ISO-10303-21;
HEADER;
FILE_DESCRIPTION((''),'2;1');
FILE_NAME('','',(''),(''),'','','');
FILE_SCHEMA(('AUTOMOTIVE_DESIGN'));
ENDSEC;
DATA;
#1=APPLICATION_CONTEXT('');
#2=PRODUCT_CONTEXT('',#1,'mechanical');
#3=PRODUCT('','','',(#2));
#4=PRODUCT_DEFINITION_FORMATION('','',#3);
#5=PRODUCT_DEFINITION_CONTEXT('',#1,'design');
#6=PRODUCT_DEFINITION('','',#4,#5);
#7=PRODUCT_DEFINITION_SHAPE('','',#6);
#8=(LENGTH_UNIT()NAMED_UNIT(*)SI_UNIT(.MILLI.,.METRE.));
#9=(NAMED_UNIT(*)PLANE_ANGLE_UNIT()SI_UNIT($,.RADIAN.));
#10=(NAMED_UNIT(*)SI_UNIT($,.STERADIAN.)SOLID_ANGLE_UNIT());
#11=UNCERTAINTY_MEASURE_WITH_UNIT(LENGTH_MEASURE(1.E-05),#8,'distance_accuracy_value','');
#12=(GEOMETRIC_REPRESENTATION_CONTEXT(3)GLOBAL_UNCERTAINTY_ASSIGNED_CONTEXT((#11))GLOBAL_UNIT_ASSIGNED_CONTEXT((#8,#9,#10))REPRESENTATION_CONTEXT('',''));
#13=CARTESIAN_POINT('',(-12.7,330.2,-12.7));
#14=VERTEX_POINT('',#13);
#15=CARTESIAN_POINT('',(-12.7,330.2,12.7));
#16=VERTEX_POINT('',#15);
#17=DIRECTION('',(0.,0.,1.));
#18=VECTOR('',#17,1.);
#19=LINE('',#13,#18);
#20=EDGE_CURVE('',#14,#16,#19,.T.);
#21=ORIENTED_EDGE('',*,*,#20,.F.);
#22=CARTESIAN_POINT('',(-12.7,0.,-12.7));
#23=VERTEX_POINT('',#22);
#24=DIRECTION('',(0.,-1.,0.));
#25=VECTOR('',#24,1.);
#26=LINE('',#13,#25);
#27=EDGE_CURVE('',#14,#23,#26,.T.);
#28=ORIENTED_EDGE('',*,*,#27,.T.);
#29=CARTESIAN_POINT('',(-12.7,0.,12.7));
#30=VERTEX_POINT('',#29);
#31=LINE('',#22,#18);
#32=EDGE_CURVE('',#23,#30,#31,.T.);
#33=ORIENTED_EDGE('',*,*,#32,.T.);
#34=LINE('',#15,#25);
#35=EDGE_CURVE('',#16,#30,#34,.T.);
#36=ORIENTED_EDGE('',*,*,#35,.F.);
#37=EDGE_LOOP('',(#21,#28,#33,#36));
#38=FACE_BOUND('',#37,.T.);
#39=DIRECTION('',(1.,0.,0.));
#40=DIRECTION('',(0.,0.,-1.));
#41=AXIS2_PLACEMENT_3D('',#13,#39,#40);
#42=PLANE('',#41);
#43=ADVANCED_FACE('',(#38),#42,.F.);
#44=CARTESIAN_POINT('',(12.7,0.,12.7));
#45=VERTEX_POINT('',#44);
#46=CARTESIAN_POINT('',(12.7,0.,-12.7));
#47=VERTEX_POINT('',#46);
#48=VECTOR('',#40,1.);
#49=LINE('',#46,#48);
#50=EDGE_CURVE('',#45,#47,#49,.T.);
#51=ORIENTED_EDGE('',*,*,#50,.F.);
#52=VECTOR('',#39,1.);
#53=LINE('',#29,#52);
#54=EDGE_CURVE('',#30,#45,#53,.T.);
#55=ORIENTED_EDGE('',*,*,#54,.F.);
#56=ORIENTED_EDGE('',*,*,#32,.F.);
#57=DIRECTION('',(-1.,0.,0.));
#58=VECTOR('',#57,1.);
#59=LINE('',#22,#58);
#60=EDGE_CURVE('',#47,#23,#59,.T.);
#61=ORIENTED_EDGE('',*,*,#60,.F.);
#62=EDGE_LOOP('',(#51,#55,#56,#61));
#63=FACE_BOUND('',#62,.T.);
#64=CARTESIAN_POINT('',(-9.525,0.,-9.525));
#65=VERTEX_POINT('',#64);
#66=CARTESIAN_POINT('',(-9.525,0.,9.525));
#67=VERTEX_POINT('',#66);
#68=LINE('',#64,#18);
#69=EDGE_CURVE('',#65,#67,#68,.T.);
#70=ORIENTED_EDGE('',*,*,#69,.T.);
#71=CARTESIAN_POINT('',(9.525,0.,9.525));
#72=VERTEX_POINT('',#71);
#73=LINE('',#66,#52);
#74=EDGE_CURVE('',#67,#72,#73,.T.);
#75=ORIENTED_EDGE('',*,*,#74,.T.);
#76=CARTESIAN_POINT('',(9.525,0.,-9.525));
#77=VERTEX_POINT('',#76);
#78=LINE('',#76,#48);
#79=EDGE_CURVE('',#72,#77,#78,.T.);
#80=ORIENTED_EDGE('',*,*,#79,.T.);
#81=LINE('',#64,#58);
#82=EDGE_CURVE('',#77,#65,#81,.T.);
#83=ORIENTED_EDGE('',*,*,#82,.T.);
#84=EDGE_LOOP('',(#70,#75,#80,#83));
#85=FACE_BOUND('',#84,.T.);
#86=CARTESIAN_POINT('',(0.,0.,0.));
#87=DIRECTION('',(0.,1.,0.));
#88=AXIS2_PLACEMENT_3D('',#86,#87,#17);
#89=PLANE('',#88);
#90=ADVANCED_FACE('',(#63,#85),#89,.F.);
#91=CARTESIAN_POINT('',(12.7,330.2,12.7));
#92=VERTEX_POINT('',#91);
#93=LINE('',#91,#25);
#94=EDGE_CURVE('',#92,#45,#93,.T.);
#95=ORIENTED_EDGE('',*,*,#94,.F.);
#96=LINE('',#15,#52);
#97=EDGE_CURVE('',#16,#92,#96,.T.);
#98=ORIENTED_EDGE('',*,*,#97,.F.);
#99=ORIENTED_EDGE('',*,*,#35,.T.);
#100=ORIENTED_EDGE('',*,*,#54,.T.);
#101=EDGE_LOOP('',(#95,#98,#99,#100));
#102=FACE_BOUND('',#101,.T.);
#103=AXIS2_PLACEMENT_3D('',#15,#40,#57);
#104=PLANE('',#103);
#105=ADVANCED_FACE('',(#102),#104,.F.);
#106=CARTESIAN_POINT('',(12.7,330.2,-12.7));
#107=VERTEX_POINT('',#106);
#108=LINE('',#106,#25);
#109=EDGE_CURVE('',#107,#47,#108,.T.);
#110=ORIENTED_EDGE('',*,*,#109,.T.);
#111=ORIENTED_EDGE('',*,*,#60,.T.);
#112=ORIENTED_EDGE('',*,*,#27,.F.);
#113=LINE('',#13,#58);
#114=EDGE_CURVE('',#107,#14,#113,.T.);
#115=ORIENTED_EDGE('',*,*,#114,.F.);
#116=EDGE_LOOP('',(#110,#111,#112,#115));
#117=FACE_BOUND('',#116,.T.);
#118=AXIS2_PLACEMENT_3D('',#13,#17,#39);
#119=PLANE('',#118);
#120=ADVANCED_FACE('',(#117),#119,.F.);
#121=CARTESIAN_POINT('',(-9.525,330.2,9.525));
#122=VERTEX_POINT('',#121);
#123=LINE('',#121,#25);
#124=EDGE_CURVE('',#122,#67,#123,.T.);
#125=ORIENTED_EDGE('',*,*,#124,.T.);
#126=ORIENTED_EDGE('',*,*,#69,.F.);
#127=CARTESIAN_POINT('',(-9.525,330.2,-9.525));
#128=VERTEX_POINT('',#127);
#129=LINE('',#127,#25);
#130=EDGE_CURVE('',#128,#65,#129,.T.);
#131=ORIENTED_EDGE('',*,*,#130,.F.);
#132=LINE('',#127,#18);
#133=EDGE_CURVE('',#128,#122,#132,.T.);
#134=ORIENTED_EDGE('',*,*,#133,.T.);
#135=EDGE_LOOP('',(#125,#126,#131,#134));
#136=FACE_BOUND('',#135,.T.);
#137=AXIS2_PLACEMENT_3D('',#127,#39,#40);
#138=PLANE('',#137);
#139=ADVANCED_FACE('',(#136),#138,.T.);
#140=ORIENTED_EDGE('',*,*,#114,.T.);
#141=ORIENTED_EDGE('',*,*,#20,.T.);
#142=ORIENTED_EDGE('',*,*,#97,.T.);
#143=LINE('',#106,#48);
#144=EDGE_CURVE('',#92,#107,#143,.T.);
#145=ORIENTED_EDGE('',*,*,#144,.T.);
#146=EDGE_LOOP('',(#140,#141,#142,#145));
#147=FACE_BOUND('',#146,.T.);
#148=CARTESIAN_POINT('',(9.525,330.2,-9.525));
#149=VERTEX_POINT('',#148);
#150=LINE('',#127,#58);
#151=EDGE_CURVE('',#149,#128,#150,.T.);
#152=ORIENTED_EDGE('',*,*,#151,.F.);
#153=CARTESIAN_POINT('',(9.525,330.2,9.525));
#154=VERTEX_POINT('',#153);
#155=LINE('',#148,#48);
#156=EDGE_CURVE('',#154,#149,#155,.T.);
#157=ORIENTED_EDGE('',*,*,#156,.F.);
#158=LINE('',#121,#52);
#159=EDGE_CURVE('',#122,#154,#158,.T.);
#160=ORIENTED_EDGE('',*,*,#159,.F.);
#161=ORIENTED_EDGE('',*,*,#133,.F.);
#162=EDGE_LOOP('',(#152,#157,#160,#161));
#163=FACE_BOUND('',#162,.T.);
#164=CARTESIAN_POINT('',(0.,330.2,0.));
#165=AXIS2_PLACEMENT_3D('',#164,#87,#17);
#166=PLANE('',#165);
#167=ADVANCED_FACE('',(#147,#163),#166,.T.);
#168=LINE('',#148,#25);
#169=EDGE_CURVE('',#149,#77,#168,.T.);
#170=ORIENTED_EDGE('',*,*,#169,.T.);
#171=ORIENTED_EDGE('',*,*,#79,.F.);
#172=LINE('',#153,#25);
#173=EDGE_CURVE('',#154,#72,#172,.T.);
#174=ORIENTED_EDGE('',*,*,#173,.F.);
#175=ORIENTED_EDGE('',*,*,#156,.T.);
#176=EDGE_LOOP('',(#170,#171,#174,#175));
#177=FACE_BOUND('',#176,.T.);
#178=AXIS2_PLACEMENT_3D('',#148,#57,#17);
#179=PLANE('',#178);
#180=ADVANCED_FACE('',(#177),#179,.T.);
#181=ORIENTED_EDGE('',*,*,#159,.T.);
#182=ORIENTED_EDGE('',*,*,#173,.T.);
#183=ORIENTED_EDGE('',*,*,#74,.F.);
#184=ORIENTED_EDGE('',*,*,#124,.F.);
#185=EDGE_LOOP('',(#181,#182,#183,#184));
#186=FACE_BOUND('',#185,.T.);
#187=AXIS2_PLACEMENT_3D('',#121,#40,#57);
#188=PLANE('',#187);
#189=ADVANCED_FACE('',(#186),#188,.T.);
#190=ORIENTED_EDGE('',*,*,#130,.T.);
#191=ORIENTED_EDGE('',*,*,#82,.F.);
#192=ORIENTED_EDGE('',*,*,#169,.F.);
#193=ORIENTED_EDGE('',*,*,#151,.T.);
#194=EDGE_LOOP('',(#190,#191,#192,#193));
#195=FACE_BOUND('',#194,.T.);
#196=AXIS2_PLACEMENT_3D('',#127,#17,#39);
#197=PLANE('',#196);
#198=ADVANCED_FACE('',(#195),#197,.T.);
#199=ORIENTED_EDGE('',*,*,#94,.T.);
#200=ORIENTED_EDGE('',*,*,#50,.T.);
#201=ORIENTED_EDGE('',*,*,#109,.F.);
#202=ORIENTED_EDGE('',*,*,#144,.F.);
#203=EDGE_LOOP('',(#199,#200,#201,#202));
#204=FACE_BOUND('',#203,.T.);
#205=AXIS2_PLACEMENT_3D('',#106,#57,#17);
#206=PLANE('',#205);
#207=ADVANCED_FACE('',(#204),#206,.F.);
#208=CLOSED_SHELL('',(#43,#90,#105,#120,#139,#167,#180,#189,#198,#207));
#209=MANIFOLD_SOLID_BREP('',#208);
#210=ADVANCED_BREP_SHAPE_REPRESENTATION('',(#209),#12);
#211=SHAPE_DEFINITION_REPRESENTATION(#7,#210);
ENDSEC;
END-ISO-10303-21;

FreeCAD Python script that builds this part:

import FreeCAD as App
import Part
import Sketcher
from FreeCAD import Vector
Q = App.Units.Quantity


def add_polygon(sketch, points):
    """Adds a closed chain of lines whose ends are joined by coincident constraints."""
    first, n = sketch.GeometryCount, len(points)
    for a, b in zip(points, points[1:] + points[:1]):
        sketch.addGeometry(Part.LineSegment(App.Vector(*a, 0), App.Vector(*b, 0)), False)
    for i in range(n):
        sketch.addConstraint(Sketcher.Constraint("Coincident", first + i, 2, first + (i + 1) % n, 1))

doc = App.newDocument("Part")
body = doc.addObject("PartDesign::Body", "Body")

sketch1 = body.newObject("Sketcher::SketchObject", "Sketch")
sketch1.AttachmentSupport = (doc.getObject("XZ_Plane"), [""])
sketch1.MapMode = "FlatFace"
add_polygon(sketch1, [(-13, -13), (-13, 13), (13, 13), (13, -13)])
add_polygon(sketch1, [(10, 10), (-10, 10), (-10, -10), (10, -10)])
sketch1.addConstraint([
    Sketcher.Constraint("Vertical", 0),
    Sketcher.Constraint("Horizontal", 1),
    Sketcher.Constraint("Vertical", 2),
    Sketcher.Constraint("Horizontal", 3),
    Sketcher.Constraint("Horizontal", 4),
    Sketcher.Constraint("Vertical", 5),
    Sketcher.Constraint("Horizontal", 6),
    Sketcher.Constraint("Vertical", 7),
    Sketcher.Constraint("Symmetric", 0, 2, 2, 2, -1, 1),
    Sketcher.Constraint("Symmetric", 4, 2, 6, 2, -1, 1),
    Sketcher.Constraint("Equal", 3, 0),
    Sketcher.Constraint("Equal", 6, 5),
    Sketcher.Constraint("DistanceX", 1, 1, 1, 2, Q("1 in")),
    Sketcher.Constraint("DistanceX", 4, 2, 4, 1, Q("0.75 in")),
])
pad1 = body.newObject("PartDesign::Pad", "Pad")
pad1.Profile = sketch1
pad1.Length = Q("13 in")
pad1.Reversed = True

doc.recompute()
